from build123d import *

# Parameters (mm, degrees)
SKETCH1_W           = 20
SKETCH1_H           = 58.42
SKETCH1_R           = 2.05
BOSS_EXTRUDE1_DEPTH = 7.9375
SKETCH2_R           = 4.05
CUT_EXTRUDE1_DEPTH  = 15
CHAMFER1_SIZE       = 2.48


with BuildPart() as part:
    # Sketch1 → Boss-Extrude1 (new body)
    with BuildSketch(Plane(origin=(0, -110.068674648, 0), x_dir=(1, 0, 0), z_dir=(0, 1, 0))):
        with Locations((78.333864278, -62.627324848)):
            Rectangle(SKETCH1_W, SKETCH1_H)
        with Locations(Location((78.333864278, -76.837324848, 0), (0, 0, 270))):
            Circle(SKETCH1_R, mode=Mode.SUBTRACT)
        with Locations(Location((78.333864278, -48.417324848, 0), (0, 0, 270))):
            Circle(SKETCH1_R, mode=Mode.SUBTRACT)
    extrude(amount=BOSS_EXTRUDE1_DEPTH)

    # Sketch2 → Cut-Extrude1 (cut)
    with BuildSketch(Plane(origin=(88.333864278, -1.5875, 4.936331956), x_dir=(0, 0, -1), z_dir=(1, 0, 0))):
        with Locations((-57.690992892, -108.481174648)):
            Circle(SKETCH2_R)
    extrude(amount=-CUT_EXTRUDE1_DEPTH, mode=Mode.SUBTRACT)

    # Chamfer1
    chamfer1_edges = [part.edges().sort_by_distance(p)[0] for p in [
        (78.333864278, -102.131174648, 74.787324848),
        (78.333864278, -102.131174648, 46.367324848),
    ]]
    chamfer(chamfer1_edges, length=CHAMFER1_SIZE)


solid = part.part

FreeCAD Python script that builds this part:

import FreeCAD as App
import Part
import Sketcher
from FreeCAD import Vector


def edges_at(feature, points):
    """Names of the edges that pass closest to the given points."""
    edges = feature.Shape.Edges
    near = lambda p: min(range(len(edges)), key=lambda i: edges[i].distToShape(Part.Vertex(*p))[0])
    return sorted({f"Edge{near(p) + 1}" for p in points})

doc = App.newDocument("Part")
body = doc.addObject("PartDesign::Body", "Body")

# Sketch on XZ plane
sketch1 = body.newObject("Sketcher::SketchObject", "Sketch")
sketch1.AttachmentSupport = (doc.getObject("XZ_Plane"), [""])
sketch1.MapMode = "FlatFace"
sketch1.AttachmentOffset = App.Placement(Vector(0, 0, 110.068675), App.Rotation())
sketch1.addGeometry([
    Part.LineSegment(Vector(68.3, 33.4, 0), Vector(68.3, 91.8, 0)),  # 0
    Part.LineSegment(Vector(68.3, 91.8, 0), Vector(88.3, 91.8, 0)),  # 1
    Part.LineSegment(Vector(88.3, 91.8, 0), Vector(88.3, 33.4, 0)),  # 2
    Part.LineSegment(Vector(88.3, 33.4, 0), Vector(68.3, 33.4, 0)),  # 3
    Part.Circle(Vector(78.3, 76.8, 0), Vector(0, 0, 1), 2),  # 4
    Part.Circle(Vector(78.3, 48.4, 0), Vector(0, 0, 1), 2),  # 5
], False)
sketch1.addConstraint([
    Sketcher.Constraint("Coincident", 0, 2, 1, 1),
    Sketcher.Constraint("Coincident", 1, 2, 2, 1),
    Sketcher.Constraint("Coincident", 2, 2, 3, 1),
    Sketcher.Constraint("Coincident", 3, 2, 0, 1),
    Sketcher.Constraint("Vertical", 0),
    Sketcher.Constraint("Horizontal", 1),
    Sketcher.Constraint("Vertical", 2),
    Sketcher.Constraint("Horizontal", 3),
    Sketcher.Constraint("Equal", 4, 5),
    Sketcher.Constraint("Vertical", 4, 3, 5, 3),
    Sketcher.Constraint("Diameter", 4, 4.1),
    Sketcher.Constraint("DistanceX", 1, 1, 1, 2, 20.0),
    Sketcher.Constraint("DistanceX", 0, 2, 4, 3, 10.0),
    Sketcher.Constraint("DistanceY", 4, 3, 0, 2, 15.0),
    Sketcher.Constraint("DistanceY", 2, 2, 5, 3, 15.0),
    Sketcher.Constraint("DistanceY", 0, 1, 0, 2, 58.42),
    Sketcher.Constraint("DistanceX", -1, 1, 4, 3, 78.333864),
    Sketcher.Constraint("DistanceY", -1, 1, 4, 3, 76.837325),
])
pad1 = body.newObject("PartDesign::Pad", "Pad")
pad1.Profile = sketch1
pad1.Length = 7.9375
pad1.Reversed = True

# Sketch on YZ plane
sketch2 = body.newObject("Sketcher::SketchObject", "Sketch001")
sketch2.AttachmentSupport = (doc.getObject("YZ_Plane"), [""])
sketch2.MapMode = "FlatFace"
sketch2.AttachmentOffset = App.Placement(Vector(0, 0, 88.333864), App.Rotation())
sketch2.addGeometry(Part.Circle(Vector(-110.1, 62.6, 0), Vector(0, 0, 1), 4), False)
sketch2.addConstraint([
    Sketcher.Constraint("Diameter", 0, 8.1),
    Sketcher.Constraint("DistanceX", 0, 3, -1, 1, 110.068675),
    Sketcher.Constraint("DistanceY", -1, 1, 0, 3, 62.627325),
])
pocket1 = body.newObject("PartDesign::Pocket", "Pocket")
pocket1.Profile = sketch2
pocket1.Length = 15
doc.recompute()

chamfer = body.newObject("PartDesign::Chamfer", "Chamfer")
chamfer.Base = (pocket1, edges_at(pocket1, [(78.334, -102.131, 74.787), (78.334, -102.131, 46.367)]))
chamfer.Size = 2.48

doc.recompute()
